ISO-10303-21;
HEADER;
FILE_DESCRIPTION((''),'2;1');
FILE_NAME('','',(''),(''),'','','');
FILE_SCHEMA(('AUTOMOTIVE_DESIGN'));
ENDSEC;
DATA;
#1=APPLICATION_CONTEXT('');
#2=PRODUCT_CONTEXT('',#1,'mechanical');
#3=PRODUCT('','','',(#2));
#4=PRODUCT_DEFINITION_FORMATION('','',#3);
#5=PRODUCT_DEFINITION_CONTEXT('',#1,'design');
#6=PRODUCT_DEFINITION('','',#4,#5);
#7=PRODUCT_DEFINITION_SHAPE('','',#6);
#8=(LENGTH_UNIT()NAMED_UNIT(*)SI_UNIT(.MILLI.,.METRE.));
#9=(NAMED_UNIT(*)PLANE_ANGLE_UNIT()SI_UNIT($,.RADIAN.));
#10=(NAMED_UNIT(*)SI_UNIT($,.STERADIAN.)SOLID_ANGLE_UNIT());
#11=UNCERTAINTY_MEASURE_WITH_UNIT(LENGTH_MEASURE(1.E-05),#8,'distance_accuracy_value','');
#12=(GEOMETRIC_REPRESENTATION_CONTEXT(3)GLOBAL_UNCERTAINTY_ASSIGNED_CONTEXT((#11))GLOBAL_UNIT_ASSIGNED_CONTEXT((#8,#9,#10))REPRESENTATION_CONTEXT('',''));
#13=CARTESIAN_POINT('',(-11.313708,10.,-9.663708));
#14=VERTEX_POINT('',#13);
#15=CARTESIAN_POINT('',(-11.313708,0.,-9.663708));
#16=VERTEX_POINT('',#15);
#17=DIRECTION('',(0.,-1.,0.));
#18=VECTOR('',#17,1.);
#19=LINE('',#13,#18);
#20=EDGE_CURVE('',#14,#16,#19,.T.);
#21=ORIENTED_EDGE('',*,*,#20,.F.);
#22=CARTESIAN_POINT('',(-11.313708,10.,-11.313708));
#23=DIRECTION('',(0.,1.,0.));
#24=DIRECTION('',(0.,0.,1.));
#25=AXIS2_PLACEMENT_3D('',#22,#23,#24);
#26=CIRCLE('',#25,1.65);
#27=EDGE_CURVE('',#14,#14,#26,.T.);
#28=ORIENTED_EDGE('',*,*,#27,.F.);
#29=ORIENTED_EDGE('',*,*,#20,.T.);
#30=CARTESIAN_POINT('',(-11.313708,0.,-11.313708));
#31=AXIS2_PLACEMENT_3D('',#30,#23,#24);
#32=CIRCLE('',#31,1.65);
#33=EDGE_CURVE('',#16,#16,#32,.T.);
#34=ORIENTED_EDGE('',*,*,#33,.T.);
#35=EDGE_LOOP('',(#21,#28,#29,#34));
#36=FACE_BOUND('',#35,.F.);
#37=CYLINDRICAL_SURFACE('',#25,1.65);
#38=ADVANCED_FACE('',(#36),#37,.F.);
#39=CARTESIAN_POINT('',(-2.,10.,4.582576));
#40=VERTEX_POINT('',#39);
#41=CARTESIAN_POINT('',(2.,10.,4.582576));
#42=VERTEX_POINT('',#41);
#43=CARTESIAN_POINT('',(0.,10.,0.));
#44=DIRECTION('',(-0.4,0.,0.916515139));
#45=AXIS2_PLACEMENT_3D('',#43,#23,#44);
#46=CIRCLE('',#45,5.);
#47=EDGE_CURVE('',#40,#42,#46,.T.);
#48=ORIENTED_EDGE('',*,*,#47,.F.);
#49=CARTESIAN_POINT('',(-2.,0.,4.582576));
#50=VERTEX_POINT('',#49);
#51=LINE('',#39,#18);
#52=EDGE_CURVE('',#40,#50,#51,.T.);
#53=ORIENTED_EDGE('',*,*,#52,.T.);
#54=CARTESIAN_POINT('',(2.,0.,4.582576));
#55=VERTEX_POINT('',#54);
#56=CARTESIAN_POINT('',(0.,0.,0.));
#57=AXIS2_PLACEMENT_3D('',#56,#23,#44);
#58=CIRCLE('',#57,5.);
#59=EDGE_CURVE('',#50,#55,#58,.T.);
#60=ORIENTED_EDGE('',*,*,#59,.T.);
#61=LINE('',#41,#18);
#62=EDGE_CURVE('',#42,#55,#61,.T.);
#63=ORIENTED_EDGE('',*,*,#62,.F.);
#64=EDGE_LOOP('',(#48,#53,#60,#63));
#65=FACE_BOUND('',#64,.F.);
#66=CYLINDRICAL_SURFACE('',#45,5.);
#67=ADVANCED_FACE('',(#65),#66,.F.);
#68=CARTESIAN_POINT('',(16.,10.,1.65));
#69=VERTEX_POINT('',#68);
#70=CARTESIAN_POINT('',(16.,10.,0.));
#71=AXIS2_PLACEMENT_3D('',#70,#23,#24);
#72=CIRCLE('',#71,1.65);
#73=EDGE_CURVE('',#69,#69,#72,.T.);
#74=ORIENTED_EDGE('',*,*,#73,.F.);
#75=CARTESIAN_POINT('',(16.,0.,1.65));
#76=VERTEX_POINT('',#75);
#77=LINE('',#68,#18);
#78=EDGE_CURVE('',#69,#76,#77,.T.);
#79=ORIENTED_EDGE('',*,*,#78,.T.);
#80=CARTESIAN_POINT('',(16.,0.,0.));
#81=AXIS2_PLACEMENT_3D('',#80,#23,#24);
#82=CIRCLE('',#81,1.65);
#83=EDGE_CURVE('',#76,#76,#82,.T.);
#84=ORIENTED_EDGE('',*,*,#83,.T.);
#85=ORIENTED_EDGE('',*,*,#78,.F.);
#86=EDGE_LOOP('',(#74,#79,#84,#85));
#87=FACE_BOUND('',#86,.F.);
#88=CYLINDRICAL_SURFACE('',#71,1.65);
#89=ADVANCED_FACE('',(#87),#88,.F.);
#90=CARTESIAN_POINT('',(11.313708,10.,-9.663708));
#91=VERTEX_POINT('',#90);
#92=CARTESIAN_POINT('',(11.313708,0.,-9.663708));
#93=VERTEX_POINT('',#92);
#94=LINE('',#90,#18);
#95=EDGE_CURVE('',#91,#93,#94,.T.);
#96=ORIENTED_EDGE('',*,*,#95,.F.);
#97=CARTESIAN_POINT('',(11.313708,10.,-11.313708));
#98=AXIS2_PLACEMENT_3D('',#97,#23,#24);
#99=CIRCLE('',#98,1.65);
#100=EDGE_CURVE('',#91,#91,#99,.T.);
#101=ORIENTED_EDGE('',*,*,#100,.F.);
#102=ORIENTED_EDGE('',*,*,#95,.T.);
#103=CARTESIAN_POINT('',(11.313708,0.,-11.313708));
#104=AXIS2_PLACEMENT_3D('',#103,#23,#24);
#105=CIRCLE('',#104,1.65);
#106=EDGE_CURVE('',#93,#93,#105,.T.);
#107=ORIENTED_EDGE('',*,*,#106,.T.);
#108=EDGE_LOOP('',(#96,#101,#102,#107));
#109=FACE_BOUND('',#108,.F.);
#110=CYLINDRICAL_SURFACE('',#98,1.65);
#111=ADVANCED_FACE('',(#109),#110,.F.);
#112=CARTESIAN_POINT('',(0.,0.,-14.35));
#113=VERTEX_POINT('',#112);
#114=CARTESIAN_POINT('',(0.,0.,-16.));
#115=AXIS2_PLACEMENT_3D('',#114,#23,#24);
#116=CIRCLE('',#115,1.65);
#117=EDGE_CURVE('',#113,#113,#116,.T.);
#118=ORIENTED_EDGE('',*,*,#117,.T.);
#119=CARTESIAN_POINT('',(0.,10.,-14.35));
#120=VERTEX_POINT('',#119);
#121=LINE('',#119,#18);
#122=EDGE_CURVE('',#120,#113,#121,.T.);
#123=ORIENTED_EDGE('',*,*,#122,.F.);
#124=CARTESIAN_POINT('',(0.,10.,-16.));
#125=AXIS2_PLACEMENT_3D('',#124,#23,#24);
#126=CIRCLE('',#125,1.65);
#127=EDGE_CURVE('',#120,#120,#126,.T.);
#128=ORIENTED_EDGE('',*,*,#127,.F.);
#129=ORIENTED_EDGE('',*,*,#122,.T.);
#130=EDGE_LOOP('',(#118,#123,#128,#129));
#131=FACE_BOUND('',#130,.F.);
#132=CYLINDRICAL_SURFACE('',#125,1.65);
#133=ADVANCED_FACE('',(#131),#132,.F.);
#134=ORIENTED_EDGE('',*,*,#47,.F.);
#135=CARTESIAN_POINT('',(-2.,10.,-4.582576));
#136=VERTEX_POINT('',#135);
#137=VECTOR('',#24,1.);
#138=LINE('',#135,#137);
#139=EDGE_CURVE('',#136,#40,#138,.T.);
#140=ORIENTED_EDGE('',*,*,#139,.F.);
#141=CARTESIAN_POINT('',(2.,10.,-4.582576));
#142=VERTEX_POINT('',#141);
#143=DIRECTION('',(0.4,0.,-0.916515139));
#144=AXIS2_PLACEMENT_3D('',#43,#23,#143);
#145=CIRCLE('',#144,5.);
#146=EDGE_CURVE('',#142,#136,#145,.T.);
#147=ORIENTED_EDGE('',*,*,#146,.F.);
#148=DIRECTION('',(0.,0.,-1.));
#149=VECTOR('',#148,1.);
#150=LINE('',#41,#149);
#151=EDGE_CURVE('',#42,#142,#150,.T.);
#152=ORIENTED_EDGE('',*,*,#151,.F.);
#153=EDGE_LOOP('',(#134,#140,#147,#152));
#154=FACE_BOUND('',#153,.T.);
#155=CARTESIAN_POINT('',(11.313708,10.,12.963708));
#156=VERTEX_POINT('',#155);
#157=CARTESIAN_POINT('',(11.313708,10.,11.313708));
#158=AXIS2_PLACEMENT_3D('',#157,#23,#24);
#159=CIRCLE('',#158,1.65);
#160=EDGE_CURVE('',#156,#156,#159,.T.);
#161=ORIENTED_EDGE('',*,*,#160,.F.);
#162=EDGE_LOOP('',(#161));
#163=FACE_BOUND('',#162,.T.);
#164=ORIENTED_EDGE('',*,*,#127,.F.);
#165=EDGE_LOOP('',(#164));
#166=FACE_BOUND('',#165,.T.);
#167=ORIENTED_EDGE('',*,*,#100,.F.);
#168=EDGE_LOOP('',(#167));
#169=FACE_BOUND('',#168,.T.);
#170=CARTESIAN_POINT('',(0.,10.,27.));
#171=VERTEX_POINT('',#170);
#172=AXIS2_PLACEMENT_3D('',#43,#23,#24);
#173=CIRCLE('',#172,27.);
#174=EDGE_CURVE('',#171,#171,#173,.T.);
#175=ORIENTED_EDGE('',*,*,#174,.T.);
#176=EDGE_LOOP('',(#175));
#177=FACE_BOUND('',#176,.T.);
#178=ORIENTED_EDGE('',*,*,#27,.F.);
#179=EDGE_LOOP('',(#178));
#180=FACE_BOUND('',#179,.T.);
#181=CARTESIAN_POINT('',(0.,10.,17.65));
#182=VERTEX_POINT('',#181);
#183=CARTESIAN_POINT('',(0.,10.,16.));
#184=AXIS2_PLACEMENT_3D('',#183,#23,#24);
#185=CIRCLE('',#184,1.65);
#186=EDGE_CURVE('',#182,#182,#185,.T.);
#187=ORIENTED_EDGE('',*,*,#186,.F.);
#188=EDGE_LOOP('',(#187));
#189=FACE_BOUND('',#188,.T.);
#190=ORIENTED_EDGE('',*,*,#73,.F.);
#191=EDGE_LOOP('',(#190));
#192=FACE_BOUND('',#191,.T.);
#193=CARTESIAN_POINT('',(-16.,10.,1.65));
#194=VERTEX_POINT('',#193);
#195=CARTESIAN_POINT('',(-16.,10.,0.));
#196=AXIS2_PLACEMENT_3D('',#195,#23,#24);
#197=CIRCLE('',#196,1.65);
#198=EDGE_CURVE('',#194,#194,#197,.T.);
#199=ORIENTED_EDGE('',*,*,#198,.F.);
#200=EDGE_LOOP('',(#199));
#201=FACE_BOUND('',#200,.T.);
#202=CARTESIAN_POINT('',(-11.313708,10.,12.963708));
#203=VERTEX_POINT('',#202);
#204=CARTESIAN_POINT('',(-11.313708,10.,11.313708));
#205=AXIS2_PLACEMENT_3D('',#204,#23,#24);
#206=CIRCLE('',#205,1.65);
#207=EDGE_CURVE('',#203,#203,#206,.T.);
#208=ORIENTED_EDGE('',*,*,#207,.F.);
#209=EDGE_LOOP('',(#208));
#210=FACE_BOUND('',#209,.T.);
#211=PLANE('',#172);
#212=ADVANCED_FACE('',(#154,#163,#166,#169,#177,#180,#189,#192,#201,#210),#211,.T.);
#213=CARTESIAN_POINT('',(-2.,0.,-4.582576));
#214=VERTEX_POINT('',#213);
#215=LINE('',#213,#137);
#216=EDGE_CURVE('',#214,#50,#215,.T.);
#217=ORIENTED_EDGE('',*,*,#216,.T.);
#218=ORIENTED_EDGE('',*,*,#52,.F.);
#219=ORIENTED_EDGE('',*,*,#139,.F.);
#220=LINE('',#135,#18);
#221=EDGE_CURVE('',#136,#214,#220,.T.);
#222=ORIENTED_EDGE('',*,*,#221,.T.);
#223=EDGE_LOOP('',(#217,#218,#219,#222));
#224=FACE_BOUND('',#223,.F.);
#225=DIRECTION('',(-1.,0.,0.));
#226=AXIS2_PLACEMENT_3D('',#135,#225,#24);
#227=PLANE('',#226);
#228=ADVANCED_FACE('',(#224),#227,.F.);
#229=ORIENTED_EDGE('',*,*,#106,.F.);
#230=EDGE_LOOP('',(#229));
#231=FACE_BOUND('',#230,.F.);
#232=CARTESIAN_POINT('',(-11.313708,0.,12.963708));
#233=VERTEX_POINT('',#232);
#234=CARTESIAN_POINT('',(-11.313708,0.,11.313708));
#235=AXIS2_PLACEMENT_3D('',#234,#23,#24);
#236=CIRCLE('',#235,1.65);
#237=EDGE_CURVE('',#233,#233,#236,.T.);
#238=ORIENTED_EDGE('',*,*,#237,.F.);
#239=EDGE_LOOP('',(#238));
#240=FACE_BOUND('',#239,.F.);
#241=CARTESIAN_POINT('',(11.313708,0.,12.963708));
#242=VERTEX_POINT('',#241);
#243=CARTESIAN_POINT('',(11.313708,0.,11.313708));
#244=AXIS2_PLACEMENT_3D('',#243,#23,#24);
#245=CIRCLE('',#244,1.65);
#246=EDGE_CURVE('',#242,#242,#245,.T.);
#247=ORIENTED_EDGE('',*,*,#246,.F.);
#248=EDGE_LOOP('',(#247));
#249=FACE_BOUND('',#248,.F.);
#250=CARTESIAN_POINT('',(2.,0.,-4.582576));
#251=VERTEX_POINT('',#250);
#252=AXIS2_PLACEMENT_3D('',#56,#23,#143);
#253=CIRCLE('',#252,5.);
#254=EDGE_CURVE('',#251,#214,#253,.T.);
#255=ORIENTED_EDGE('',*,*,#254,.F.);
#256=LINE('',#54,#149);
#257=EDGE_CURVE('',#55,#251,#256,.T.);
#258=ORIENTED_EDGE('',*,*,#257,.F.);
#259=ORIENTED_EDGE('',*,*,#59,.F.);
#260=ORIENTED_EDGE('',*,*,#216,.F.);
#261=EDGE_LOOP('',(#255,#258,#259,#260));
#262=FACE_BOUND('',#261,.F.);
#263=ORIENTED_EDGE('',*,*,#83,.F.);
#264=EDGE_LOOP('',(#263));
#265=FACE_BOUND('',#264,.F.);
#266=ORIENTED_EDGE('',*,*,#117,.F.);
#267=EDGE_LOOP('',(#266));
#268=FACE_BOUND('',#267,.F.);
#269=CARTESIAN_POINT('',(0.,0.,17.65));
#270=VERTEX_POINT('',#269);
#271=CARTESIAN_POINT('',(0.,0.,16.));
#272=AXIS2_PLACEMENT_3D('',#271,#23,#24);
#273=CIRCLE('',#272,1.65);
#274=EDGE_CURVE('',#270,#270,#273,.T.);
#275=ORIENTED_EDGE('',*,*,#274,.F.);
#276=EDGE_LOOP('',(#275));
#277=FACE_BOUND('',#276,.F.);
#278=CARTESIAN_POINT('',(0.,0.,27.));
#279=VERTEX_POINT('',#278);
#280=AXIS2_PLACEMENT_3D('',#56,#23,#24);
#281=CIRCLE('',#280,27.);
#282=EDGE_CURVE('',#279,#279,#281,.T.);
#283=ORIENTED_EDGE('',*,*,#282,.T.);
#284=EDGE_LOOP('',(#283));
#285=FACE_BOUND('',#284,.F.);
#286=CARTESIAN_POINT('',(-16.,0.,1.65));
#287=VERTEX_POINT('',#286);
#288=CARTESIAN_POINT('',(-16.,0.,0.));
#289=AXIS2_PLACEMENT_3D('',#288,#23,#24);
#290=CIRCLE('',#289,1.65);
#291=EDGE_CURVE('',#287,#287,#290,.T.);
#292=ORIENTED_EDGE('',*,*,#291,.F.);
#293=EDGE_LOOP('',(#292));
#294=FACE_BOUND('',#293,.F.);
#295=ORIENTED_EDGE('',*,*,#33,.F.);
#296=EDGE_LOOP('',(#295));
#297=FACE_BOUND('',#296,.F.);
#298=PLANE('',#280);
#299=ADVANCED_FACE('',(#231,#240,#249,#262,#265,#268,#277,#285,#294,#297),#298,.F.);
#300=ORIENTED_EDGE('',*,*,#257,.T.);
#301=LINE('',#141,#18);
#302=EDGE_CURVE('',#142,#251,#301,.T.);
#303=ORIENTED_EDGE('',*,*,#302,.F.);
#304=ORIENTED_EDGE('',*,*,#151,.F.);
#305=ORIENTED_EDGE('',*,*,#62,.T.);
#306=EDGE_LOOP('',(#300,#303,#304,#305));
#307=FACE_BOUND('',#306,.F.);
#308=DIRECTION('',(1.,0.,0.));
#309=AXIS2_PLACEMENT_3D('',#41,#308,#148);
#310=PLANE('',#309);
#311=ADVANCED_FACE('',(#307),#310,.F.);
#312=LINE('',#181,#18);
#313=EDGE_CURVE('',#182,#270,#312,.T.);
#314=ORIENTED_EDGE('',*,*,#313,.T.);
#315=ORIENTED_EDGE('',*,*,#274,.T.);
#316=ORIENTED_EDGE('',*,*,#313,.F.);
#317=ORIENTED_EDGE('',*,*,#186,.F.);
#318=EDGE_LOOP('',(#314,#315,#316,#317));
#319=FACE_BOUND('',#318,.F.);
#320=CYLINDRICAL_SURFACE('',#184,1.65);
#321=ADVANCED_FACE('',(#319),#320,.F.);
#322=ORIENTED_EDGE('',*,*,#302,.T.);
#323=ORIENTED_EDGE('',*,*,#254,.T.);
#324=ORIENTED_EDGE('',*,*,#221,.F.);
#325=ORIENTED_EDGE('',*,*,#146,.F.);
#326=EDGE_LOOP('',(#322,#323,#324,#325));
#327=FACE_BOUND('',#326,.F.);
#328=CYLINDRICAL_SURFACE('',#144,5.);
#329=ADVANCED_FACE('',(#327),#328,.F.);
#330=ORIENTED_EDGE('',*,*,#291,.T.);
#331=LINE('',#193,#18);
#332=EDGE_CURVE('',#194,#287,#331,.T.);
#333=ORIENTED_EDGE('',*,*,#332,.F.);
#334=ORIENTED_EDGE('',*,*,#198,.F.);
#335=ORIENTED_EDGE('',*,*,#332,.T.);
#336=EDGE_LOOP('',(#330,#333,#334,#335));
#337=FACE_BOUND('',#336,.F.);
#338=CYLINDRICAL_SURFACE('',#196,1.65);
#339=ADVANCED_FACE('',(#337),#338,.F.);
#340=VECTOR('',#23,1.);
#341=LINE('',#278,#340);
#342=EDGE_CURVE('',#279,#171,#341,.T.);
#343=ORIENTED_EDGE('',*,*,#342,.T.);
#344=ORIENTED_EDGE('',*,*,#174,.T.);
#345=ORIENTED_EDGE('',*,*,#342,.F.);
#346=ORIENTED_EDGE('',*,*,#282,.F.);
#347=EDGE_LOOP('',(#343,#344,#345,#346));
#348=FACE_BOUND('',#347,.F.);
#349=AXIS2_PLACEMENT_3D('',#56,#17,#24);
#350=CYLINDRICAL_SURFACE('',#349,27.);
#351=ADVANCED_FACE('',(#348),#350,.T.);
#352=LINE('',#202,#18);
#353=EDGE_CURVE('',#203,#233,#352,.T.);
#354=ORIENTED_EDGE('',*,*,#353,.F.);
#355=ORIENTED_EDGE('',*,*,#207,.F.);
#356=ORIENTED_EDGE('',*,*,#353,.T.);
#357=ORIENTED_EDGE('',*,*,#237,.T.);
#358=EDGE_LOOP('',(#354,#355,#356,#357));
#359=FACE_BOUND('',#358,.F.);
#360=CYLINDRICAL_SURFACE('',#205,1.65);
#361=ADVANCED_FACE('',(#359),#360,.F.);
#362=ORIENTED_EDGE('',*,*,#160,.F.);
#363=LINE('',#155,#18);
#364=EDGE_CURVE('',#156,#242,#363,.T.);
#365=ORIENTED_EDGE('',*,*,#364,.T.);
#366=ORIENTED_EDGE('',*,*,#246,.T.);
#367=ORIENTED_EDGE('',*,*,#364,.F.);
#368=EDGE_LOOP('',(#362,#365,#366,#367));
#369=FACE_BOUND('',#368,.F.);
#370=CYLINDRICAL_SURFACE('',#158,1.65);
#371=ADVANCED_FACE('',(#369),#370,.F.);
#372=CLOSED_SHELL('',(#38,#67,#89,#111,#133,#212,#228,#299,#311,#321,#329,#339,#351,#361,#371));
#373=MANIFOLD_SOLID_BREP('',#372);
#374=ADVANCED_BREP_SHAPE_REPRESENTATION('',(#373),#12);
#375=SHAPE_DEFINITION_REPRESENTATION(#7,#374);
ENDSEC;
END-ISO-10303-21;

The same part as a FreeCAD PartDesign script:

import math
import FreeCAD as App
import Part
import Sketcher
Q = App.Units.Quantity

doc = App.newDocument("Part")
params = doc.addObject("Spreadsheet::Sheet", "Params")
for row, (alias, value) in enumerate([
    ("sketch1_diameter", "54 mm"),
    ("pad1_length", "10 mm"),
    ("sketch2_radius", "5 mm"),
    ("pocket1_length", "10 mm"),
    ("sketch3_diameter", "3.3 mm"),
    ("pocket2_length", "10 mm"),
], start=1):
    params.set(f"A{row}", alias)
    params.set(f"B{row}", "=" + value)
    params.setAlias(f"B{row}", alias)

body = doc.addObject("PartDesign::Body", "Body")

sketch1 = body.newObject("Sketcher::SketchObject", "Sketch")
sketch1.AttachmentSupport = (doc.getObject("XZ_Plane"), [""])
sketch1.MapMode = "FlatFace"
sketch1.addGeometry(Part.Circle(App.Vector(0, 0, 0), App.Vector(0, 0, 1), 27), False)
sketch1.addConstraint(Sketcher.Constraint("Coincident", 0, 3, -1, 1))
sketch1.addConstraint(Sketcher.Constraint("Diameter", 0, Q("54 mm")))
sketch1.setExpression("Constraints[1]", "Params.sketch1_diameter")
pad1 = body.newObject("PartDesign::Pad", "Pad")
pad1.Profile = sketch1
pad1.setExpression("Length", "Params.pad1_length")
pad1.Reversed = True

sketch2 = body.newObject("Sketcher::SketchObject", "Sketch001")
sketch2.AttachmentSupport = (doc.getObject("XZ_Plane"), [""])
sketch2.MapMode = "FlatFace"
sketch2.AttachmentOffset = App.Placement(App.Vector(0, 0, -10), App.Rotation())
sketch2.addGeometry(Part.LineSegment(App.Vector(-2, -4.6, 0), App.Vector(-2, 4.6, 0)), False)
sketch2.addGeometry(Part.ArcOfCircle(Part.Circle(App.Vector(0, 0, 0), App.Vector(0, 0, 1), 5), math.radians(66), math.radians(114)), False)
sketch2.addGeometry(Part.LineSegment(App.Vector(2, 4.6, 0), App.Vector(2, -4.6, 0)), False)
sketch2.addGeometry(Part.ArcOfCircle(Part.Circle(App.Vector(0, 0, 0), App.Vector(0, 0, 1), 5), math.radians(-114), math.radians(-66)), False)
sketch2.addConstraint(Sketcher.Constraint("Coincident", 0, 2, 1, 2))
sketch2.addConstraint(Sketcher.Constraint("Coincident", 1, 1, 2, 1))
sketch2.addConstraint(Sketcher.Constraint("Coincident", 2, 2, 3, 2))
sketch2.addConstraint(Sketcher.Constraint("Coincident", 3, 1, 0, 1))
sketch2.addConstraint(Sketcher.Constraint("Vertical", 0))
sketch2.addConstraint(Sketcher.Constraint("Vertical", 2))
sketch2.addConstraint(Sketcher.Constraint("Coincident", 1, 3, -1, 1))
sketch2.addConstraint(Sketcher.Constraint("Coincident", 3, 3, -1, 1))
sketch2.addConstraint(Sketcher.Constraint("Equal", 1, 3))
sketch2.addConstraint(Sketcher.Constraint("Horizontal", 0, 2, 1, 1))
sketch2.addConstraint(Sketcher.Constraint("Radius", 1, Q("5 mm")))
sketch2.addConstraint(Sketcher.Constraint("DistanceX", 0, 2, -1, 1, Q("2 mm")))
sketch2.setExpression("Constraints[10]", "Params.sketch2_radius")
pocket1 = body.newObject("PartDesign::Pocket", "Pocket")
pocket1.Profile = sketch2
pocket1.setExpression("Length", "Params.pocket1_length")
pocket1.Reversed = True

sketch3 = body.newObject("Sketcher::SketchObject", "Sketch002")
sketch3.AttachmentSupport = (doc.getObject("XZ_Plane"), [""])
sketch3.MapMode = "FlatFace"
sketch3.AttachmentOffset = App.Placement(App.Vector(0, 0, -10), App.Rotation())
sketch3.addGeometry(Part.Circle(App.Vector(16, 0, 0), App.Vector(0, 0, 1), 1.6), False)
sketch3.addGeometry(Part.Circle(App.Vector(11.3, 11.3, 0), App.Vector(0, 0, 1), 1.6), False)
sketch3.addGeometry(Part.Circle(App.Vector(0, 16, 0), App.Vector(0, 0, 1), 1.6), False)
sketch3.addGeometry(Part.Circle(App.Vector(-11.3, 11.3, 0), App.Vector(0, 0, 1), 1.6), False)
sketch3.addGeometry(Part.Circle(App.Vector(-16, 0, 0), App.Vector(0, 0, 1), 1.6), False)
sketch3.addGeometry(Part.Circle(App.Vector(-11.3, -11.3, 0), App.Vector(0, 0, 1), 1.6), False)
sketch3.addGeometry(Part.Circle(App.Vector(0, -16, 0), App.Vector(0, 0, 1), 1.6), False)
sketch3.addGeometry(Part.Circle(App.Vector(11.3, -11.3, 0), App.Vector(0, 0, 1), 1.6), False)
sketch3.addConstraint(Sketcher.Constraint("Equal", 0, 1))
sketch3.addConstraint(Sketcher.Constraint("Equal", 1, 2))
sketch3.addConstraint(Sketcher.Constraint("Equal", 2, 3))
sketch3.addConstraint(Sketcher.Constraint("Equal", 3, 4))
sketch3.addConstraint(Sketcher.Constraint("Equal", 4, 5))
sketch3.addConstraint(Sketcher.Constraint("Equal", 5, 6))
sketch3.addConstraint(Sketcher.Constraint("Equal", 6, 7))
sketch3.addConstraint(Sketcher.Constraint("Symmetric", 0, 3, 4, 3, -1, 1))
sketch3.addConstraint(Sketcher.Constraint("Symmetric", 1, 3, 5, 3, -1, 1))
sketch3.addConstraint(Sketcher.Constraint("Symmetric", 2, 3, 6, 3, -1, 1))
sketch3.addConstraint(Sketcher.Constraint("Symmetric", 3, 3, 7, 3, -1, 1))
sketch3.addConstraint(Sketcher.Constraint("Symmetric", 1, 3, 3, 3, -2))
sketch3.addConstraint(Sketcher.Constraint("PointOnObject", 0, 3, -1))
sketch3.addConstraint(Sketcher.Constraint("PointOnObject", 2, 3, -2))
sketch3.addConstraint(Sketcher.Constraint("Diameter", 0, Q("3.3 mm")))
sketch3.addConstraint(Sketcher.Constraint("DistanceX", -1, 1, 0, 3, Q("16 mm")))
sketch3.addConstraint(Sketcher.Constraint("DistanceY", -1, 1, 2, 3, Q("16 mm")))
sketch3.addConstraint(Sketcher.Constraint("DistanceX", -1, 1, 1, 3, Q("11.313708 mm")))
sketch3.addConstraint(Sketcher.Constraint("DistanceY", -1, 1, 1, 3, Q("11.313708 mm")))
sketch3.setExpression("Constraints[14]", "Params.sketch3_diameter")
pocket2 = body.newObject("PartDesign::Pocket", "Pocket001")
pocket2.Profile = sketch3
pocket2.setExpression("Length", "Params.pocket2_length")
pocket2.Reversed = True

doc.recompute()
